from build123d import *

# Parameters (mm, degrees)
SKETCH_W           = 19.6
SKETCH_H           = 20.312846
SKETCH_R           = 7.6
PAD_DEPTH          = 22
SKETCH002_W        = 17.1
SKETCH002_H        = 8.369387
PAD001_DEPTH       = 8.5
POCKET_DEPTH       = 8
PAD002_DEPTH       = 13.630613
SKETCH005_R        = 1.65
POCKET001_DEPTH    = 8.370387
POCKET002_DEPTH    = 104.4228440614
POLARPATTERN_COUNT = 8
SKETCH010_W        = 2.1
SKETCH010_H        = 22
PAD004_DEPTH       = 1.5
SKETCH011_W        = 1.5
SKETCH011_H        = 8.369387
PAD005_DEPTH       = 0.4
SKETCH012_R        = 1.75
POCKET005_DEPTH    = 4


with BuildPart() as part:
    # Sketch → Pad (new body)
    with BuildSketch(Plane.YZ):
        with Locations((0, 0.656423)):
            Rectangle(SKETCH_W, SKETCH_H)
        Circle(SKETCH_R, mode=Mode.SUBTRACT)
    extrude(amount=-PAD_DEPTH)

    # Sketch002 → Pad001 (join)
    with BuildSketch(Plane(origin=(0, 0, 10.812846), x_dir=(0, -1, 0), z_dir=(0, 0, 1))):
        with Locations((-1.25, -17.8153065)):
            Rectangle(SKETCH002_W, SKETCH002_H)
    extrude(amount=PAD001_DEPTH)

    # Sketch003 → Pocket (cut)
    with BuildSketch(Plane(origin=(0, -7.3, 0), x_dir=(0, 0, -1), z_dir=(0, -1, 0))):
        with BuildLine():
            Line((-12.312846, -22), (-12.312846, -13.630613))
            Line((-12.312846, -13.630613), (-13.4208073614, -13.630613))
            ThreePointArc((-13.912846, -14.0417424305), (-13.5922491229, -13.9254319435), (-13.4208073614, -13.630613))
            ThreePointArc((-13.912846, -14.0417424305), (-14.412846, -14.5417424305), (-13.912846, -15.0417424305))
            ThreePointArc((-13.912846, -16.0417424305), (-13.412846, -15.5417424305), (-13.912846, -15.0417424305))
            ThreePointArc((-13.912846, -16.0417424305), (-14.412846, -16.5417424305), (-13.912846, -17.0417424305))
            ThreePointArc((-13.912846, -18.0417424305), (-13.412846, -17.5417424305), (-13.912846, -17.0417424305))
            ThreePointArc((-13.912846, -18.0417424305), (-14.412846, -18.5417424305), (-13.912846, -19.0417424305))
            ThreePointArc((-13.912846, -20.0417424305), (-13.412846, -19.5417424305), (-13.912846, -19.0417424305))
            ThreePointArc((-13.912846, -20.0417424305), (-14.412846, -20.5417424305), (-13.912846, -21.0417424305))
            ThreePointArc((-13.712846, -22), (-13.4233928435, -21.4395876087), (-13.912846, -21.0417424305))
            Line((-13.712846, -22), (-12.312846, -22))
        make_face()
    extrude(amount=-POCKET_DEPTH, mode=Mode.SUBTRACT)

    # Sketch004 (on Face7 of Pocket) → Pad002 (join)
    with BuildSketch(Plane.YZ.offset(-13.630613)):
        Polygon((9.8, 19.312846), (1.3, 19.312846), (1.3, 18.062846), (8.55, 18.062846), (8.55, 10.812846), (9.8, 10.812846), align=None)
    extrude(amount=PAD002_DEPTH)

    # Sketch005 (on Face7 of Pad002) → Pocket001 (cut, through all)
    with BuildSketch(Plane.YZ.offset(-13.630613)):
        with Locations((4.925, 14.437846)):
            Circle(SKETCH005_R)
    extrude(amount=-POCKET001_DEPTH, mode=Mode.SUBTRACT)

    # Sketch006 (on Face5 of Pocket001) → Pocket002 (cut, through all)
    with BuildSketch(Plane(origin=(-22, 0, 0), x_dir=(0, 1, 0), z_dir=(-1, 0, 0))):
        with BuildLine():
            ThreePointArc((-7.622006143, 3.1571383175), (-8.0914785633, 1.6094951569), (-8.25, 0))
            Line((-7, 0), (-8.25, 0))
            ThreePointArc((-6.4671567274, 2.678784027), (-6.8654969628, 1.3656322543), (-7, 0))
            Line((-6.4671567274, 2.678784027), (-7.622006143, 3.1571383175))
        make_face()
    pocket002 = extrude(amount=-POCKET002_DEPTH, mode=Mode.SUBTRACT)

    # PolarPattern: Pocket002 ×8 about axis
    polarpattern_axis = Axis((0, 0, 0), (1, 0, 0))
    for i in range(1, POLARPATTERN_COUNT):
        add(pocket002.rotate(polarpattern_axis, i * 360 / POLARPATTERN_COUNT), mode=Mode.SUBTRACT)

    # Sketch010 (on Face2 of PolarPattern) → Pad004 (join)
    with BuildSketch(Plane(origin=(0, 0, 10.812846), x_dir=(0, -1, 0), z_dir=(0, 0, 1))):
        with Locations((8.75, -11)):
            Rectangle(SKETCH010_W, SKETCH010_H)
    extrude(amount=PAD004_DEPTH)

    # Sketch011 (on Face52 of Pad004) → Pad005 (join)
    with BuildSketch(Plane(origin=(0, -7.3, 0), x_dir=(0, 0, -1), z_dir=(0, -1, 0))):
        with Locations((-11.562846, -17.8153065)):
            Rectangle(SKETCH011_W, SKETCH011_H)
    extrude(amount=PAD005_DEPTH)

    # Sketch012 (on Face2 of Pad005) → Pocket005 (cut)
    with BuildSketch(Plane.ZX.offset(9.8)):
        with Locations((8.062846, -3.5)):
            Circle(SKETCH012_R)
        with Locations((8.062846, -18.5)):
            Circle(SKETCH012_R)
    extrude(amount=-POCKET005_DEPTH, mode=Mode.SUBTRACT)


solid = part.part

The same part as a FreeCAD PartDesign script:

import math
import FreeCAD as App
import Part
import Sketcher
Q = App.Units.Quantity


def add_polygon(sketch, points):
    """Adds a closed chain of lines whose ends are joined by coincident constraints."""
    first, n = sketch.GeometryCount, len(points)
    for a, b in zip(points, points[1:] + points[:1]):
        sketch.addGeometry(Part.LineSegment(App.Vector(*a, 0), App.Vector(*b, 0)), False)
    for i in range(n):
        sketch.addConstraint(Sketcher.Constraint("Coincident", first + i, 2, first + (i + 1) % n, 1))

doc = App.newDocument("Part")
params = doc.addObject("Spreadsheet::Sheet", "Params")
for row, (alias, value) in enumerate([
    ("sketch1_diameter", "15.2 mm"),
    ("sketch1_width", "19.6 mm"),
    ("pad1_length", "22 mm"),
    ("sketch2_height", "17.1 mm"),
    ("pad2_length", "8.5 mm"),
    ("sketch3_radius", "0.5 mm"),
    ("sketch3_height", "1.4 mm"),
    ("pocket1_length", "8 mm"),
    ("sketch4_width", "8.5 mm"),
    ("sketch4_width2", "7.25 mm"),
    ("pad3_length", "13.630613 mm"),
    ("sketch5_diameter", "3.3 mm"),
    ("sketch6_radius", "7 mm"),
    ("sketch6_radius2", "8.25 mm"),
    ("sketch7_width", "22 mm"),
    ("sketch7_height", "2.1 mm"),
    ("pad4_length", "1.5 mm"),
    ("sketch8_height", "1.5 mm"),
    ("pad5_length", "0.4 mm"),
    ("sketch9_diameter", "3.5 mm"),
    ("pocket4_length", "4 mm"),
], start=1):
    params.set(f"A{row}", alias)
    params.set(f"B{row}", "=" + value)
    params.setAlias(f"B{row}", alias)

body = doc.addObject("PartDesign::Body", "Body")

# Sketch on YZ plane
sketch1 = doc.addObject("Sketcher::SketchObject", "Sketch")
body.addObject(sketch1)
sketch1.AttachmentSupport = (doc.YZ_Plane, [""])
sketch1.MapMode = "FlatFace"
add_polygon(sketch1, [(-10, 11), (-10, -10), (10, -10), (10, 11)])  # lines 0-3
sketch1.addGeometry(Part.Circle(App.Vector(0, 0, 0), App.Vector(0, 0, 1), 8), False)  # 4
sketch1.addConstraint([
    Sketcher.Constraint("Vertical", 0),
    Sketcher.Constraint("Horizontal", 1),
    Sketcher.Constraint("Vertical", 2),
    Sketcher.Constraint("Horizontal", 3),
    Sketcher.Constraint("Coincident", 4, 3, -1, 1),
    Sketcher.Constraint("Diameter", 4, Q("15.2 mm")),
    Sketcher.Constraint("DistanceX", 1, 1, 1, 2, Q("19.6 mm")),
    Sketcher.Constraint("DistanceX", 0, 2, -1, 1, Q("9.8 mm")),
    Sketcher.Constraint("DistanceY", 0, 2, -1, 1, Q("9.5 mm")),
    Sketcher.Constraint("DistanceY", 0, 2, 0, 1, Q("20.312846 mm")),
])
sketch1.setExpression("Constraints[9]", "Params.sketch1_diameter")
sketch1.setExpression("Constraints[10]", "Params.sketch1_width")
pad1 = doc.addObject("PartDesign::Pad", "Pad")
body.addObject(pad1)
pad1.Profile = sketch1
pad1.setExpression("Length", "Params.pad1_length")
pad1.Reversed = True

# Sketch on XY plane
sketch2 = doc.addObject("Sketcher::SketchObject", "Sketch001")
body.addObject(sketch2)
sketch2.AttachmentSupport = (doc.XY_Plane, [""])
sketch2.MapMode = "FlatFace"
sketch2.AttachmentOffset = App.Placement(App.Vector(0, 0, 10.812846), App.Rotation())
add_polygon(sketch2, [(-14, 10), (-22, 10), (-22, -7), (-14, -7)])  # lines 0-3
sketch2.addConstraint([
    Sketcher.Constraint("Horizontal", 0),
    Sketcher.Constraint("Vertical", 1),
    Sketcher.Constraint("Horizontal", 2),
    Sketcher.Constraint("Vertical", 3),
    Sketcher.Constraint("DistanceY", 1, 2, 1, 1, Q("17.1 mm")),
    Sketcher.Constraint("DistanceX", 0, 2, -1, 1, Q("22 mm")),
    Sketcher.Constraint("DistanceY", -1, 1, 0, 2, Q("9.8 mm")),
    Sketcher.Constraint("DistanceX", 0, 2, 0, 1, Q("8.369387 mm")),
])
sketch2.setExpression("Constraints[8]", "Params.sketch2_height")
pad2 = doc.addObject("PartDesign::Pad", "Pad001")
body.addObject(pad2)
pad2.Profile = sketch2
pad2.setExpression("Length", "Params.pad2_length")

# Sketch on XZ plane
sketch3 = doc.addObject("Sketcher::SketchObject", "Sketch002")
body.addObject(sketch3)
sketch3.AttachmentSupport = (doc.XZ_Plane, [""])
sketch3.MapMode = "FlatFace"
sketch3.AttachmentOffset = App.Placement(App.Vector(0, 0, 7.3), App.Rotation())
sketch3.addGeometry([
    Part.LineSegment(App.Vector(-22, 12.3, 0), App.Vector(-13.6, 12.3, 0)),  # 0
    Part.LineSegment(App.Vector(-13.6, 12.3, 0), App.Vector(-13.6, 13.4, 0)),  # 1
    Part.ArcOfCircle(Part.Circle(App.Vector(-13.5, 13.9, 0), App.Vector(0, 0, 1), 0.5), math.radians(180), math.radians(260)),  # 2
    Part.ArcOfCircle(Part.Circle(App.Vector(-14.5, 13.9, 0), App.Vector(0, 0, 1), 0.5), math.radians(0), math.radians(180)),  # 3
    Part.ArcOfCircle(Part.Circle(App.Vector(-15.5, 13.9, 0), App.Vector(0, 0, 1), 0.5), math.radians(180), math.radians(360)),  # 4
    Part.ArcOfCircle(Part.Circle(App.Vector(-16.5, 13.9, 0), App.Vector(0, 0, 1), 0.5), math.radians(0), math.radians(180)),  # 5
    Part.ArcOfCircle(Part.Circle(App.Vector(-17.5, 13.9, 0), App.Vector(0, 0, 1), 0.5), math.radians(180), math.radians(360)),  # 6
    Part.ArcOfCircle(Part.Circle(App.Vector(-18.5, 13.9, 0), App.Vector(0, 0, 1), 0.5), math.radians(0), math.radians(180)),  # 7
    Part.ArcOfCircle(Part.Circle(App.Vector(-19.5, 13.9, 0), App.Vector(0, 0, 1), 0.5), math.radians(180), math.radians(360)),  # 8
    Part.ArcOfCircle(Part.Circle(App.Vector(-20.5, 13.9, 0), App.Vector(0, 0, 1), 0.5), math.radians(0), math.radians(180)),  # 9
    Part.ArcOfCircle(Part.Circle(App.Vector(-21.5, 13.9, 0), App.Vector(0, 0, 1), 0.5), math.radians(-156), math.radians(0)),  # 10
    Part.LineSegment(App.Vector(-22, 13.7, 0), App.Vector(-22, 12.3, 0)),  # 11
], False)
sketch3.addConstraint([
    Sketcher.Constraint("Coincident", 0, 2, 1, 1),
    Sketcher.Constraint("Coincident", 1, 2, 2, 2),
    Sketcher.Constraint("Tangent", 2, 1, 3, 1),
    Sketcher.Constraint("Tangent", 3, 2, 4, 2),
    Sketcher.Constraint("Tangent", 4, 1, 5, 1),
    Sketcher.Constraint("Tangent", 5, 2, 6, 2),
    Sketcher.Constraint("Tangent", 6, 1, 7, 1),
    Sketcher.Constraint("Tangent", 7, 2, 8, 2),
    Sketcher.Constraint("Tangent", 8, 1, 9, 1),
    Sketcher.Constraint("Tangent", 9, 2, 10, 2),
    Sketcher.Constraint("Coincident", 10, 1, 11, 1),
    Sketcher.Constraint("Coincident", 11, 2, 0, 1),
    Sketcher.Constraint("Horizontal", 0),
    Sketcher.Constraint("Vertical", 1),
    Sketcher.Constraint("Vertical", 11),
    Sketcher.Constraint("Equal", 2, 3),
    Sketcher.Constraint("Equal", 3, 4),
    Sketcher.Constraint("Equal", 4, 5),
    Sketcher.Constraint("Equal", 5, 6),
    Sketcher.Constraint("Equal", 6, 7),
    Sketcher.Constraint("Equal", 7, 8),
    Sketcher.Constraint("Equal", 8, 9),
    Sketcher.Constraint("Equal", 9, 10),
    Sketcher.Constraint("Horizontal", 2, 3, 3, 3),
    Sketcher.Constraint("Horizontal", 3, 3, 4, 3),
    Sketcher.Constraint("Horizontal", 4, 3, 5, 3),
    Sketcher.Constraint("Horizontal", 5, 3, 6, 3),
    Sketcher.Constraint("Horizontal", 6, 3, 7, 3),
    Sketcher.Constraint("Horizontal", 7, 3, 8, 3),
    Sketcher.Constraint("Horizontal", 8, 3, 9, 3),
    Sketcher.Constraint("Horizontal", 9, 3, 10, 3),
    Sketcher.Constraint("Radius", 2, Q("0.5 mm")),
    Sketcher.Constraint("DistanceY", 11, 2, 11, 1, Q("1.4 mm")),
    Sketcher.Constraint("DistanceX", 10, 1, -1, 1, Q("22 mm")),
    Sketcher.Constraint("DistanceY", 0, 2, 2, 3, Q("1.6 mm")),
    Sketcher.Constraint("DistanceY", 1, 1, 1, 2, Q("1.107961 mm")),
    Sketcher.Constraint("DistanceY", -1, 1, 2, 3, Q("13.912846 mm")),
])
sketch3.setExpression("Constraints[31]", "Params.sketch3_radius")
sketch3.setExpression("Constraints[32]", "Params.sketch3_height")
pocket1 = doc.addObject("PartDesign::Pocket", "Pocket")
body.addObject(pocket1)
pocket1.Profile = sketch3
pocket1.setExpression("Length", "Params.pocket1_length")

# Sketch on YZ plane
sketch4 = doc.addObject("Sketcher::SketchObject", "Sketch003")
body.addObject(sketch4)
sketch4.AttachmentSupport = (doc.YZ_Plane, [""])
sketch4.MapMode = "FlatFace"
sketch4.AttachmentOffset = App.Placement(App.Vector(0, 0, -13.630613), App.Rotation())
add_polygon(sketch4, [(9.8, 19.3), (1.3, 19.3), (1.3, 18.1), (8.6, 18.1), (8.6, 10.8), (9.8, 10.8)])  # lines 0-5
sketch4.addConstraint([
    Sketcher.Constraint("Horizontal", 0),
    Sketcher.Constraint("Vertical", 1),
    Sketcher.Constraint("Horizontal", 2),
    Sketcher.Constraint("Vertical", 3),
    Sketcher.Constraint("Horizontal", 4),
    Sketcher.Constraint("Vertical", 5),
    Sketcher.Constraint("Equal", 4, 1),
    Sketcher.Constraint("Equal", 2, 3),
    Sketcher.Constraint("DistanceX", 0, 2, 0, 1, Q("8.5 mm")),
    Sketcher.Constraint("DistanceX", 2, 1, 2, 2, Q("7.25 mm")),
    Sketcher.Constraint("DistanceX", -1, 1, 0, 2, Q("1.3 mm")),
    Sketcher.Constraint("DistanceY", -1, 1, 0, 2, Q("19.312846 mm")),
])
sketch4.setExpression("Constraints[14]", "Params.sketch4_width")
sketch4.setExpression("Constraints[15]", "Params.sketch4_width2")
pad3 = doc.addObject("PartDesign::Pad", "Pad002")
body.addObject(pad3)
pad3.Profile = sketch4
pad3.setExpression("Length", "Params.pad3_length")

# Sketch on YZ plane
sketch5 = doc.addObject("Sketcher::SketchObject", "Sketch004")
body.addObject(sketch5)
sketch5.AttachmentSupport = (doc.YZ_Plane, [""])
sketch5.MapMode = "FlatFace"
sketch5.AttachmentOffset = App.Placement(App.Vector(0, 0, -13.630613), App.Rotation())
sketch5.addGeometry(Part.Circle(App.Vector(4.9, 14.4, 0), App.Vector(0, 0, 1), 1.6), False)
sketch5.addConstraint([
    Sketcher.Constraint("Diameter", 0, Q("3.3 mm")),
    Sketcher.Constraint("DistanceX", -1, 1, 0, 3, Q("4.925 mm")),
    Sketcher.Constraint("DistanceY", -1, 1, 0, 3, Q("14.437846 mm")),
])
sketch5.setExpression("Constraints[0]", "Params.sketch5_diameter")
pocket2 = doc.addObject("PartDesign::Pocket", "Pocket001")
body.addObject(pocket2)
pocket2.Profile = sketch5
pocket2.Type = "ThroughAll"

# Sketch on YZ plane
sketch6 = doc.addObject("Sketcher::SketchObject", "Sketch005")
body.addObject(sketch6)
sketch6.AttachmentSupport = (doc.YZ_Plane, [""])
sketch6.MapMode = "FlatFace"
sketch6.AttachmentOffset = App.Placement(App.Vector(0, 0, -22), App.Rotation())
sketch6.addGeometry([
    Part.ArcOfCircle(Part.Circle(App.Vector(0, 0, 0), App.Vector(0, 0, 1), 8.2), math.radians(180), math.radians(203)),
    Part.LineSegment(App.Vector(-8.2, 0, 0), App.Vector(-7, 0, 0)),
    Part.ArcOfCircle(Part.Circle(App.Vector(0, 0, 0), App.Vector(0, 0, 1), 7), math.radians(180), math.radians(203)),
    Part.LineSegment(App.Vector(-6.5, -2.7, 0), App.Vector(-7.6, -3.2, 0)),
], False)
sketch6.addConstraint([
    Sketcher.Constraint("Coincident", 0, 1, 1, 1),
    Sketcher.Constraint("Coincident", 1, 2, 2, 1),
    Sketcher.Constraint("Coincident", 2, 2, 3, 1),
    Sketcher.Constraint("Coincident", 3, 2, 0, 2),
    Sketcher.Constraint("Horizontal", 1),
    Sketcher.Constraint("Coincident", 0, 3, -1, 1),
    Sketcher.Constraint("Coincident", 2, 3, -1, 1),
    Sketcher.Constraint("PointOnObject", 0, 1, -1),
    Sketcher.Constraint("Radius", 2, Q("7 mm")),
    Sketcher.Constraint("Radius", 0, Q("8.25 mm")),
    Sketcher.Constraint("Angle", 3, Q("-157.5 deg")),
    Sketcher.Constraint("DistanceY", 3, 2, -1, 1, Q("3.157138 mm")),
])
sketch6.setExpression("Constraints[8]", "Params.sketch6_radius")
sketch6.setExpression("Constraints[9]", "Params.sketch6_radius2")
pocket3 = doc.addObject("PartDesign::Pocket", "Pocket002")
body.addObject(pocket3)
pocket3.Profile = sketch6
pocket3.Type = "ThroughAll"
pocket3.Reversed = True
doc.recompute()

polarpattern = doc.addObject("PartDesign::PolarPattern", "PolarPattern")
body.addObject(polarpattern)
polarpattern.Originals = [pocket3]
polarpattern.Axis = (doc.X_Axis, [""])
polarpattern.Angle = 360
polarpattern.Occurrences = 8
body.Tip = polarpattern

# Sketch on XY plane
sketch7 = doc.addObject("Sketcher::SketchObject", "Sketch006")
body.addObject(sketch7)
sketch7.AttachmentSupport = (doc.XY_Plane, [""])
sketch7.MapMode = "FlatFace"
sketch7.AttachmentOffset = App.Placement(App.Vector(0, 0, 10.812846), App.Rotation())
add_polygon(sketch7, [(0, -7.7), (-22, -7.7), (-22, -9.8), (0, -9.8)])  # lines 0-3
sketch7.addConstraint([
    Sketcher.Constraint("Horizontal", 0),
    Sketcher.Constraint("Vertical", 1),
    Sketcher.Constraint("Horizontal", 2),
    Sketcher.Constraint("Vertical", 3),
    Sketcher.Constraint("PointOnObject", 2, 2, -2),
    Sketcher.Constraint("DistanceX", 0, 2, 0, 1, Q("22 mm")),
    Sketcher.Constraint("DistanceY", 1, 2, 1, 1, Q("2.1 mm")),
    Sketcher.Constraint("DistanceY", 0, 2, -1, 1, Q("7.7 mm")),
])
sketch7.setExpression("Constraints[9]", "Params.sketch7_width")
sketch7.setExpression("Constraints[10]", "Params.sketch7_height")
pad4 = doc.addObject("PartDesign::Pad", "Pad003")
body.addObject(pad4)
pad4.Profile = sketch7
pad4.setExpression("Length", "Params.pad4_length")

# Sketch on XZ plane
sketch8 = doc.addObject("Sketcher::SketchObject", "Sketch007")
body.addObject(sketch8)
sketch8.AttachmentSupport = (doc.XZ_Plane, [""])
sketch8.MapMode = "FlatFace"
sketch8.AttachmentOffset = App.Placement(App.Vector(0, 0, 7.3), App.Rotation())
add_polygon(sketch8, [(-13.6, 12.3), (-22, 12.3), (-22, 10.8), (-13.6, 10.8)])  # lines 0-3
sketch8.addConstraint([
    Sketcher.Constraint("Horizontal", 0),
    Sketcher.Constraint("Vertical", 1),
    Sketcher.Constraint("Horizontal", 2),
    Sketcher.Constraint("Vertical", 3),
    Sketcher.Constraint("DistanceY", 1, 2, 1, 1, Q("1.5 mm")),
    Sketcher.Constraint("DistanceX", 0, 2, -1, 1, Q("22 mm")),
    Sketcher.Constraint("DistanceX", 0, 2, 0, 1, Q("8.369387 mm")),
    Sketcher.Constraint("DistanceY", -1, 1, 0, 2, Q("12.312846 mm")),
])
sketch8.setExpression("Constraints[8]", "Params.sketch8_height")
pad5 = doc.addObject("PartDesign::Pad", "Pad004")
body.addObject(pad5)
pad5.Profile = sketch8
pad5.setExpression("Length", "Params.pad5_length")

# Sketch on XZ plane
sketch9 = doc.addObject("Sketcher::SketchObject", "Sketch008")
body.addObject(sketch9)
sketch9.AttachmentSupport = (doc.XZ_Plane, [""])
sketch9.MapMode = "FlatFace"
sketch9.AttachmentOffset = App.Placement(App.Vector(0, 0, -9.8), App.Rotation())
sketch9.addGeometry([
    Part.Circle(App.Vector(-3.5, 8.1, 0), App.Vector(0, 0, 1), 1.8),
    Part.Circle(App.Vector(-18.5, 8.1, 0), App.Vector(0, 0, 1), 1.8),
], False)
sketch9.addConstraint([
    Sketcher.Constraint("Equal", 0, 1),
    Sketcher.Constraint("Horizontal", 0, 3, 1, 3),
    Sketcher.Constraint("Diameter", 0, Q("3.5 mm")),
    Sketcher.Constraint("DistanceX", 1, 3, 0, 3, Q("15 mm")),
    Sketcher.Constraint("DistanceX", 0, 3, -1, 1, Q("3.5 mm")),
    Sketcher.Constraint("DistanceY", -1, 1, 0, 3, Q("8.062846 mm")),
])
sketch9.setExpression("Constraints[2]", "Params.sketch9_diameter")
pocket4 = doc.addObject("PartDesign::Pocket", "Pocket003")
body.addObject(pocket4)
pocket4.Profile = sketch9
pocket4.setExpression("Length", "Params.pocket4_length")
pocket4.Reversed = True

doc.recompute()
